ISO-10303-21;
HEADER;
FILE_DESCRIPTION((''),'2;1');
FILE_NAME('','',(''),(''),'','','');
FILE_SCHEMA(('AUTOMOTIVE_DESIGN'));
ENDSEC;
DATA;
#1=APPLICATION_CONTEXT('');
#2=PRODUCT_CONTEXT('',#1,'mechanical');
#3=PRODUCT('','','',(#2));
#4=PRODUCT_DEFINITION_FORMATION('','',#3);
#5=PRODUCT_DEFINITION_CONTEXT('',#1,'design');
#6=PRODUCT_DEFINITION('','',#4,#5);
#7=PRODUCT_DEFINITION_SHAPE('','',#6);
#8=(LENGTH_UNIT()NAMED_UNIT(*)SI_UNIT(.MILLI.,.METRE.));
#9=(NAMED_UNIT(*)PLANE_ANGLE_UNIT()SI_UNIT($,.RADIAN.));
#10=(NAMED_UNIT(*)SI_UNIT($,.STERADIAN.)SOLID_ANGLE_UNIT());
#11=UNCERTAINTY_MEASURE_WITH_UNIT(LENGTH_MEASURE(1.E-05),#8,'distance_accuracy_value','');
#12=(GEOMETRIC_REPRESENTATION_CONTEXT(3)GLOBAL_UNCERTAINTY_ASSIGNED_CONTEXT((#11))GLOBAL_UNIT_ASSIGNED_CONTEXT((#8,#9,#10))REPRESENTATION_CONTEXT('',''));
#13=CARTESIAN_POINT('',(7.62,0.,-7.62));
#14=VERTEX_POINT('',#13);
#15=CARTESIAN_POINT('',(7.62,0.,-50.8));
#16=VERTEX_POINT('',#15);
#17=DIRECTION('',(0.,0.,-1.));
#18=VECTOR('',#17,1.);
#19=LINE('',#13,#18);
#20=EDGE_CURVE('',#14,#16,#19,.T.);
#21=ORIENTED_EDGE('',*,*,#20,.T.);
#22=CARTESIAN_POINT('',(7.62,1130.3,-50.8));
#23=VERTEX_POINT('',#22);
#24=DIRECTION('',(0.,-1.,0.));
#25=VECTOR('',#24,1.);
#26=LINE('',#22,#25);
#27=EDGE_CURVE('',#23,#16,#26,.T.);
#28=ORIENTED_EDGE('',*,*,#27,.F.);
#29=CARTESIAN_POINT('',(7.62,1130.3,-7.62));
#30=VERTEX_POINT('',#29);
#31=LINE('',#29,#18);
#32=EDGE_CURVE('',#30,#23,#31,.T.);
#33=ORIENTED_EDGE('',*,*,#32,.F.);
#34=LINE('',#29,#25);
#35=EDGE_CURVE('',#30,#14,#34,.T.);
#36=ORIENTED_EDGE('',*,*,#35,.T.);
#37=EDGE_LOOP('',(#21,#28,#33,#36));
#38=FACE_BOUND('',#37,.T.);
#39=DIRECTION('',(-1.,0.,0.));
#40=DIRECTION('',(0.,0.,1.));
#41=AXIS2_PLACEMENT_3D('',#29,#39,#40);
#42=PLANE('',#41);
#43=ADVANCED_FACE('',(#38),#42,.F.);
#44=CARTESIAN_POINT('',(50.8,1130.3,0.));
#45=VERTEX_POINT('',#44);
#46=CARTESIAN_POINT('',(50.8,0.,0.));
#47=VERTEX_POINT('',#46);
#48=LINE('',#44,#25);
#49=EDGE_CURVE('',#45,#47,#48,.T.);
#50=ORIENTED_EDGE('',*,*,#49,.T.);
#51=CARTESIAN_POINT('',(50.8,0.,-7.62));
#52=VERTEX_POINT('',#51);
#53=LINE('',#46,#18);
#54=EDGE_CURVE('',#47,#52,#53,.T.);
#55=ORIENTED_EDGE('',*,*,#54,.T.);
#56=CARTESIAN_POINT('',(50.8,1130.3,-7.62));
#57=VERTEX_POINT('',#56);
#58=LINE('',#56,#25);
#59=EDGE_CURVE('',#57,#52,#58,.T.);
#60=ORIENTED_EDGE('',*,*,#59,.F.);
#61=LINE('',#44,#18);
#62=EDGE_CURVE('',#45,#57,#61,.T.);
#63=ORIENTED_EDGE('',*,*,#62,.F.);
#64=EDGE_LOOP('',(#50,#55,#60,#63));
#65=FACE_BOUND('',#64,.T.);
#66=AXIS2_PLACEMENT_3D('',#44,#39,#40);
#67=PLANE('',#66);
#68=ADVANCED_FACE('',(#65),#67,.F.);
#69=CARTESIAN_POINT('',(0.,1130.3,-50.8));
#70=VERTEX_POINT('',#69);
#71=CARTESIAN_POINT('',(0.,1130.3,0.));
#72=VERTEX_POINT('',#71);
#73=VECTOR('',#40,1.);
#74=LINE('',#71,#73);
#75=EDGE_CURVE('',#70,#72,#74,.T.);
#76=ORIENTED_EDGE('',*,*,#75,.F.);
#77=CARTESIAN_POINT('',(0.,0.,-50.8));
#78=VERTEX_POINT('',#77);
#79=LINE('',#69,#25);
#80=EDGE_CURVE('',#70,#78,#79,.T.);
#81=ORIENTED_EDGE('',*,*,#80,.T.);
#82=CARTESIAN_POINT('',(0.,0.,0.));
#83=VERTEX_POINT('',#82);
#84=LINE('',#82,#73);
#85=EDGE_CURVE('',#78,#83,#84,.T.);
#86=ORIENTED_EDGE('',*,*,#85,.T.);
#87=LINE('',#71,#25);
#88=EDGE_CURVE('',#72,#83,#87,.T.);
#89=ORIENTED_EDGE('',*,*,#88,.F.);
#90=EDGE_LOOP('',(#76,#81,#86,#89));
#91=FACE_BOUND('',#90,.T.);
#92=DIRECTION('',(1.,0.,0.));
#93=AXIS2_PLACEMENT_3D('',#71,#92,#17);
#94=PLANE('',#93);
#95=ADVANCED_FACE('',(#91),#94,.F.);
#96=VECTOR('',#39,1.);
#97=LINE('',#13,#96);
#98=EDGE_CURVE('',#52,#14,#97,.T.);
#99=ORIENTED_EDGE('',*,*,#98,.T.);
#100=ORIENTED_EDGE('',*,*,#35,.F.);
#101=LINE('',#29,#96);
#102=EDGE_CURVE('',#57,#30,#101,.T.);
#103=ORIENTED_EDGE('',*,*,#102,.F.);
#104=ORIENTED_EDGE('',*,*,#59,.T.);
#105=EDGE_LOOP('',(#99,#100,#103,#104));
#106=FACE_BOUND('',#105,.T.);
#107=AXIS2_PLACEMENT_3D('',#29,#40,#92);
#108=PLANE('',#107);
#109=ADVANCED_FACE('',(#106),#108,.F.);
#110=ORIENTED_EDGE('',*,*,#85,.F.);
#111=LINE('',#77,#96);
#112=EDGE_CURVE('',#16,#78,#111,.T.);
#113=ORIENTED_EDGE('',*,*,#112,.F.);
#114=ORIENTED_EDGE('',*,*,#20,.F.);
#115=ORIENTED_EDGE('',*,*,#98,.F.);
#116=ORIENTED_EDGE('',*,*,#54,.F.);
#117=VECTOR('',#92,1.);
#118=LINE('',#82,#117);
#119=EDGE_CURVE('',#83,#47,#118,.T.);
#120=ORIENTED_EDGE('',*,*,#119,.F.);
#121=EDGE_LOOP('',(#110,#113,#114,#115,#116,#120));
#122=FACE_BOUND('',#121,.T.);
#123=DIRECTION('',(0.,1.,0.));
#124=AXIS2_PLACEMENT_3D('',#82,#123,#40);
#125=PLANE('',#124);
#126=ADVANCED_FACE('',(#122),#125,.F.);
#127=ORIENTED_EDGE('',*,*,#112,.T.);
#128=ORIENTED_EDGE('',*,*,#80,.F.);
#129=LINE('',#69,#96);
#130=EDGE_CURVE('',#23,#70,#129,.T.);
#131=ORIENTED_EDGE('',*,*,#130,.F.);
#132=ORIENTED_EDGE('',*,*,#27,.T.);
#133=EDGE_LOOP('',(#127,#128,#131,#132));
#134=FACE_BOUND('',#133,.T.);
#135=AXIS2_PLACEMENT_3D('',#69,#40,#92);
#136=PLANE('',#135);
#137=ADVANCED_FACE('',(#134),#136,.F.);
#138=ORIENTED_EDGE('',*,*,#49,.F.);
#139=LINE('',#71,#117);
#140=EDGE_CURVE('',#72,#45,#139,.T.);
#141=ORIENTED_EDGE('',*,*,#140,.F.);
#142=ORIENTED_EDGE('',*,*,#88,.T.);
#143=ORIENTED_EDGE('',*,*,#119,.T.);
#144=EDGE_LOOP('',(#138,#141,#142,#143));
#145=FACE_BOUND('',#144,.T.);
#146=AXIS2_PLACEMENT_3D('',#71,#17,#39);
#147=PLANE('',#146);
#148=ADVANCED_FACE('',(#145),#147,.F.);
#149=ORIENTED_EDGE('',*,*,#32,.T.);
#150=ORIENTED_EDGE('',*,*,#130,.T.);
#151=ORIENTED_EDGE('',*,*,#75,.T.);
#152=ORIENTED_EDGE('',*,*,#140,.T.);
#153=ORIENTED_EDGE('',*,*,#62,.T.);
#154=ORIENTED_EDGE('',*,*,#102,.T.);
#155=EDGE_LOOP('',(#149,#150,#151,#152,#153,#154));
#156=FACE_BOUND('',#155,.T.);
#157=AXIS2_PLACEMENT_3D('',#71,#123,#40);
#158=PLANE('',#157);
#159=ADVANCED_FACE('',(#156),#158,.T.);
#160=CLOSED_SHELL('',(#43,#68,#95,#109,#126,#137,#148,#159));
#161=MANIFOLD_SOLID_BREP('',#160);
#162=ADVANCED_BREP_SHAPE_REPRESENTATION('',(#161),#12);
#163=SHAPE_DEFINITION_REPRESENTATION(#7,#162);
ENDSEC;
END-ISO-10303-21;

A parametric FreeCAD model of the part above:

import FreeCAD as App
import Part
import Sketcher

V = App.Vector
Q = App.Units.Quantity


def add_polygon(sketch, points):
    """Adds a closed chain of lines whose ends are joined by coincident constraints."""
    first, n = sketch.GeometryCount, len(points)
    for a, b in zip(points, points[1:] + points[:1]):
        sketch.addGeometry(Part.LineSegment(App.Vector(*a, 0), App.Vector(*b, 0)), False)
    for i in range(n):
        sketch.addConstraint(Sketcher.Constraint("Coincident", first + i, 2, first + (i + 1) % n, 1))

doc = App.newDocument("Part")
params = doc.addObject("Spreadsheet::Sheet", "Params")
for row, (alias, value) in enumerate([
    ("sketch1_width", "2 in"),
    ("sketch1_width2", "1.7 in"),
    ("pad1_length", "44.5 in"),
], start=1):
    params.set(f"A{row}", alias)
    params.set(f"B{row}", "=" + value)
    params.setAlias(f"B{row}", alias)

body = doc.addObject("PartDesign::Body", "Body")

sketch1 = body.newObject("Sketcher::SketchObject", "Sketch")
sketch1.AttachmentSupport = (doc.getObject("XZ_Plane"), [""])
sketch1.MapMode = "FlatFace"
add_polygon(sketch1, [(0, -51), (0, 0), (51, 0), (51, -8), (8, -8), (8, -51)])
sketch1.addConstraint(Sketcher.Constraint("Vertical", 0))
sketch1.addConstraint(Sketcher.Constraint("Horizontal", 1))
sketch1.addConstraint(Sketcher.Constraint("Vertical", 2))
sketch1.addConstraint(Sketcher.Constraint("Horizontal", 3))
sketch1.addConstraint(Sketcher.Constraint("Vertical", 4))
sketch1.addConstraint(Sketcher.Constraint("Horizontal", 5))
sketch1.addConstraint(Sketcher.Constraint("Coincident", 0, 2, -1, 1))
sketch1.addConstraint(Sketcher.Constraint("Equal", 1, 0))
sketch1.addConstraint(Sketcher.Constraint("Equal", 5, 2))
sketch1.addConstraint(Sketcher.Constraint("DistanceX", 1, 1, 1, 2, Q("2 in")))
sketch1.addConstraint(Sketcher.Constraint("DistanceX", 3, 2, 3, 1, Q("1.7 in")))
sketch1.setExpression("Constraints[15]", "Params.sketch1_width")
sketch1.setExpression("Constraints[16]", "Params.sketch1_width2")
pad1 = body.newObject("PartDesign::Pad", "Pad")
pad1.Profile = sketch1
pad1.setExpression("Length", "Params.pad1_length")
pad1.Reversed = True

doc.recompute()
